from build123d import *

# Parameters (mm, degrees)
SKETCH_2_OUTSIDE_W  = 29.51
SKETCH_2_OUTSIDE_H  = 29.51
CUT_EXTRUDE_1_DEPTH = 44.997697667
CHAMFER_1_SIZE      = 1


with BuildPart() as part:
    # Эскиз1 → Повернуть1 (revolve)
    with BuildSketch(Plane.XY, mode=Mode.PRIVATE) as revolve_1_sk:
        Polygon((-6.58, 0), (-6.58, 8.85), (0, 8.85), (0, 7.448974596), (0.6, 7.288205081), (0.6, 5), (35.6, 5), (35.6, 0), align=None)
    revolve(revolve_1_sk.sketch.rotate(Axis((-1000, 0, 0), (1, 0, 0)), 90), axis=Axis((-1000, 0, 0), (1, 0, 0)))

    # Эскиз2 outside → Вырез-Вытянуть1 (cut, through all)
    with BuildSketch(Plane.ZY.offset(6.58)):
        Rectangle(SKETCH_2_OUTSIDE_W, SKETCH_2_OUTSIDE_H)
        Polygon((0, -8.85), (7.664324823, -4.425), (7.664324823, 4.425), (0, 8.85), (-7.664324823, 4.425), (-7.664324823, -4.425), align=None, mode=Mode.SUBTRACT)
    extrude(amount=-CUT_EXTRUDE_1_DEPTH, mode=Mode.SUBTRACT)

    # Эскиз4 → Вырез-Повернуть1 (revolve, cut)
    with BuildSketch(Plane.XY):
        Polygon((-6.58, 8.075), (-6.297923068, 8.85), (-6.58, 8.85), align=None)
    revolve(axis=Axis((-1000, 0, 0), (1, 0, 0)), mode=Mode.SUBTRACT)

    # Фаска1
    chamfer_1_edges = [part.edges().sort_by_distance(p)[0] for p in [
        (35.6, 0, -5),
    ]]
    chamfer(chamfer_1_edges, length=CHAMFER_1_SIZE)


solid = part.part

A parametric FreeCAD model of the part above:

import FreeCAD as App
import Part
import Sketcher
Q = App.Units.Quantity


def edges_at(feature, points):
    """Names of the edges that pass closest to the given points."""
    edges = feature.Shape.Edges
    near = lambda p: min(range(len(edges)), key=lambda i: edges[i].distToShape(Part.Vertex(*p))[0])
    return sorted({f"Edge{near(p) + 1}" for p in points})

doc = App.newDocument("Part")
body = doc.addObject("PartDesign::Body", "Body")

# Sketch on XY plane
sketch1 = body.newObject("Sketcher::SketchObject", "Sketch")
sketch1.AttachmentSupport = (doc.getObject("XY_Plane"), [""])
sketch1.MapMode = "FlatFace"
sketch1.addGeometry([
    Part.LineSegment(App.Vector(-6.6, 8.8, 0), App.Vector(-6.6, 0, 0)),  # 0
    Part.LineSegment(App.Vector(-6.6, 0, 0), App.Vector(35.6, 0, 0)),  # 1
    Part.LineSegment(App.Vector(35.6, 0, 0), App.Vector(35.6, 5, 0)),  # 2
    Part.LineSegment(App.Vector(35.6, 5, 0), App.Vector(0.6, 5, 0)),  # 3
    Part.LineSegment(App.Vector(0.6, 5, 0), App.Vector(0.6, 7.3, 0)),  # 4
    Part.LineSegment(App.Vector(0.6, 7.3, 0), App.Vector(0, 7.4, 0)),  # 5
    Part.LineSegment(App.Vector(0, 7.4, 0), App.Vector(0, 8.8, 0)),  # 6
    Part.LineSegment(App.Vector(0, 8.8, 0), App.Vector(-6.6, 8.8, 0)),  # 7
], False)
sketch1.addConstraint([
    Sketcher.Constraint("Coincident", 0, 2, 1, 1),
    Sketcher.Constraint("Coincident", 1, 2, 2, 1),
    Sketcher.Constraint("Coincident", 2, 2, 3, 1),
    Sketcher.Constraint("Coincident", 3, 2, 4, 1),
    Sketcher.Constraint("Coincident", 4, 2, 5, 1),
    Sketcher.Constraint("Coincident", 5, 2, 6, 1),
    Sketcher.Constraint("Coincident", 6, 2, 7, 1),
    Sketcher.Constraint("Coincident", 7, 2, 0, 1),
    Sketcher.Constraint("Vertical", 0),
    Sketcher.Constraint("Horizontal", 1),
    Sketcher.Constraint("Vertical", 2),
    Sketcher.Constraint("Horizontal", 3),
    Sketcher.Constraint("Vertical", 4),
    Sketcher.Constraint("Vertical", 6),
    Sketcher.Constraint("Horizontal", 7),
    Sketcher.Constraint("PointOnObject", 0, 2, -1),
    Sketcher.Constraint("PointOnObject", 5, 2, -2),
    Sketcher.Constraint("DistanceX", 3, 2, 3, 1, Q("35 mm")),
    Sketcher.Constraint("DistanceY", 2, 1, 2, 2, Q("5 mm")),
    Sketcher.Constraint("Angle", 5, Q("165 deg")),
    Sketcher.Constraint("DistanceX", 1, 1, 1, 2, Q("42.18 mm")),
    Sketcher.Constraint("DistanceX", 7, 2, 7, 1, Q("6.58 mm")),
    Sketcher.Constraint("DistanceY", 0, 2, 0, 1, Q("8.85 mm")),
    Sketcher.Constraint("DistanceY", 4, 1, 4, 2, Q("2.288205 mm")),
])
revolution = body.newObject("PartDesign::Revolution", "Revolution")
revolution.Profile = sketch1
revolution.ReferenceAxis = (sketch1, ["H_Axis"])
revolution.Angle = 360

# Sketch on YZ plane
sketch2 = body.newObject("Sketcher::SketchObject", "Sketch001")
sketch2.AttachmentSupport = (doc.getObject("YZ_Plane"), [""])
sketch2.MapMode = "FlatFace"
sketch2.AttachmentOffset = App.Placement(App.Vector(0, 0, -6.58), App.Rotation())
sketch2.addGeometry([
    Part.LineSegment(App.Vector(15, -15, 0), App.Vector(-15, -15, 0)),  # 0
    Part.LineSegment(App.Vector(-15, -15, 0), App.Vector(-15, 15, 0)),  # 1
    Part.LineSegment(App.Vector(-15, 15, 0), App.Vector(15, 15, 0)),  # 2
    Part.LineSegment(App.Vector(15, 15, 0), App.Vector(15, -15, 0)),  # 3
    Part.LineSegment(App.Vector(-4, 8, 0), App.Vector(-9, 0, 0)),  # 4
    Part.LineSegment(App.Vector(-9, 0, 0), App.Vector(-4, -8, 0)),  # 5
    Part.LineSegment(App.Vector(-4, -8, 0), App.Vector(4, -8, 0)),  # 6
    Part.LineSegment(App.Vector(4, -8, 0), App.Vector(9, 0, 0)),  # 7
    Part.LineSegment(App.Vector(9, 0, 0), App.Vector(4, 8, 0)),  # 8
    Part.LineSegment(App.Vector(4, 8, 0), App.Vector(-4, 8, 0)),  # 9
], False)
sketch2.addConstraint([
    Sketcher.Constraint("Coincident", 0, 2, 1, 1),
    Sketcher.Constraint("Coincident", 1, 2, 2, 1),
    Sketcher.Constraint("Coincident", 2, 2, 3, 1),
    Sketcher.Constraint("Coincident", 3, 2, 0, 1),
    Sketcher.Constraint("Coincident", 4, 2, 5, 1),
    Sketcher.Constraint("Coincident", 5, 2, 6, 1),
    Sketcher.Constraint("Coincident", 6, 2, 7, 1),
    Sketcher.Constraint("Coincident", 7, 2, 8, 1),
    Sketcher.Constraint("Coincident", 8, 2, 9, 1),
    Sketcher.Constraint("Coincident", 9, 2, 4, 1),
    Sketcher.Constraint("Horizontal", 0),
    Sketcher.Constraint("Vertical", 1),
    Sketcher.Constraint("Horizontal", 2),
    Sketcher.Constraint("Vertical", 3),
    Sketcher.Constraint("Horizontal", 6),
    Sketcher.Constraint("Horizontal", 9),
    Sketcher.Constraint("Symmetric", 0, 2, 2, 2, -1, 1),
    Sketcher.Constraint("Symmetric", 4, 2, 7, 2, -1, 1),
    Sketcher.Constraint("Symmetric", 5, 2, 8, 2, -1, 1),
    Sketcher.Constraint("PointOnObject", 4, 2, -1),
    Sketcher.Constraint("Parallel", 4, 7),
    Sketcher.Constraint("Vertical", 6, 2, 8, 2),
    Sketcher.Constraint("Equal", 2, 1),
    Sketcher.Constraint("Angle", 4, Q("-120 deg")),
    Sketcher.Constraint("DistanceX", 0, 2, 0, 1, Q("29.51 mm")),
    Sketcher.Constraint("DistanceX", 6, 1, 6, 2, Q("8.85 mm")),
    Sketcher.Constraint("DistanceX", 4, 2, 7, 2, Q("17.7 mm")),
])
pocket1 = body.newObject("PartDesign::Pocket", "Pocket")
pocket1.Profile = sketch2
pocket1.Type = "ThroughAll"
pocket1.Reversed = True

# Sketch on XY plane
sketch3 = body.newObject("Sketcher::SketchObject", "Sketch002")
sketch3.AttachmentSupport = (doc.getObject("XY_Plane"), [""])
sketch3.MapMode = "FlatFace"
sketch3.addGeometry([
    Part.LineSegment(App.Vector(-6.58, 8.07, 0), App.Vector(-6.3, 8.85, 0)),
    Part.LineSegment(App.Vector(-6.3, 8.85, 0), App.Vector(-6.58, 8.85, 0)),
    Part.LineSegment(App.Vector(-6.58, 8.85, 0), App.Vector(-6.58, 8.07, 0)),
], False)
sketch3.addConstraint([
    Sketcher.Constraint("Coincident", 0, 2, 1, 1),
    Sketcher.Constraint("Coincident", 1, 2, 2, 1),
    Sketcher.Constraint("Coincident", 2, 2, 0, 1),
    Sketcher.Constraint("Horizontal", 1),
    Sketcher.Constraint("Vertical", 2),
    Sketcher.Constraint("Angle", 0, Q("70 deg")),
    Sketcher.Constraint("DistanceY", 2, 2, 2, 1, Q("0.775 mm")),
    Sketcher.Constraint("DistanceY", -1, 1, 0, 2, Q("8.85 mm")),
    Sketcher.Constraint("DistanceX", 1, 2, -1, 1, Q("6.58 mm")),
])
groove = body.newObject("PartDesign::Groove", "Groove")
groove.Profile = sketch3
groove.ReferenceAxis = (sketch3, ["H_Axis"])
groove.Angle = 360
doc.recompute()

chamfer = body.newObject("PartDesign::Chamfer", "Chamfer")
chamfer.Base = (groove, edges_at(groove, [(35.6, 0, -5)]))
chamfer.Size = 1

doc.recompute()
